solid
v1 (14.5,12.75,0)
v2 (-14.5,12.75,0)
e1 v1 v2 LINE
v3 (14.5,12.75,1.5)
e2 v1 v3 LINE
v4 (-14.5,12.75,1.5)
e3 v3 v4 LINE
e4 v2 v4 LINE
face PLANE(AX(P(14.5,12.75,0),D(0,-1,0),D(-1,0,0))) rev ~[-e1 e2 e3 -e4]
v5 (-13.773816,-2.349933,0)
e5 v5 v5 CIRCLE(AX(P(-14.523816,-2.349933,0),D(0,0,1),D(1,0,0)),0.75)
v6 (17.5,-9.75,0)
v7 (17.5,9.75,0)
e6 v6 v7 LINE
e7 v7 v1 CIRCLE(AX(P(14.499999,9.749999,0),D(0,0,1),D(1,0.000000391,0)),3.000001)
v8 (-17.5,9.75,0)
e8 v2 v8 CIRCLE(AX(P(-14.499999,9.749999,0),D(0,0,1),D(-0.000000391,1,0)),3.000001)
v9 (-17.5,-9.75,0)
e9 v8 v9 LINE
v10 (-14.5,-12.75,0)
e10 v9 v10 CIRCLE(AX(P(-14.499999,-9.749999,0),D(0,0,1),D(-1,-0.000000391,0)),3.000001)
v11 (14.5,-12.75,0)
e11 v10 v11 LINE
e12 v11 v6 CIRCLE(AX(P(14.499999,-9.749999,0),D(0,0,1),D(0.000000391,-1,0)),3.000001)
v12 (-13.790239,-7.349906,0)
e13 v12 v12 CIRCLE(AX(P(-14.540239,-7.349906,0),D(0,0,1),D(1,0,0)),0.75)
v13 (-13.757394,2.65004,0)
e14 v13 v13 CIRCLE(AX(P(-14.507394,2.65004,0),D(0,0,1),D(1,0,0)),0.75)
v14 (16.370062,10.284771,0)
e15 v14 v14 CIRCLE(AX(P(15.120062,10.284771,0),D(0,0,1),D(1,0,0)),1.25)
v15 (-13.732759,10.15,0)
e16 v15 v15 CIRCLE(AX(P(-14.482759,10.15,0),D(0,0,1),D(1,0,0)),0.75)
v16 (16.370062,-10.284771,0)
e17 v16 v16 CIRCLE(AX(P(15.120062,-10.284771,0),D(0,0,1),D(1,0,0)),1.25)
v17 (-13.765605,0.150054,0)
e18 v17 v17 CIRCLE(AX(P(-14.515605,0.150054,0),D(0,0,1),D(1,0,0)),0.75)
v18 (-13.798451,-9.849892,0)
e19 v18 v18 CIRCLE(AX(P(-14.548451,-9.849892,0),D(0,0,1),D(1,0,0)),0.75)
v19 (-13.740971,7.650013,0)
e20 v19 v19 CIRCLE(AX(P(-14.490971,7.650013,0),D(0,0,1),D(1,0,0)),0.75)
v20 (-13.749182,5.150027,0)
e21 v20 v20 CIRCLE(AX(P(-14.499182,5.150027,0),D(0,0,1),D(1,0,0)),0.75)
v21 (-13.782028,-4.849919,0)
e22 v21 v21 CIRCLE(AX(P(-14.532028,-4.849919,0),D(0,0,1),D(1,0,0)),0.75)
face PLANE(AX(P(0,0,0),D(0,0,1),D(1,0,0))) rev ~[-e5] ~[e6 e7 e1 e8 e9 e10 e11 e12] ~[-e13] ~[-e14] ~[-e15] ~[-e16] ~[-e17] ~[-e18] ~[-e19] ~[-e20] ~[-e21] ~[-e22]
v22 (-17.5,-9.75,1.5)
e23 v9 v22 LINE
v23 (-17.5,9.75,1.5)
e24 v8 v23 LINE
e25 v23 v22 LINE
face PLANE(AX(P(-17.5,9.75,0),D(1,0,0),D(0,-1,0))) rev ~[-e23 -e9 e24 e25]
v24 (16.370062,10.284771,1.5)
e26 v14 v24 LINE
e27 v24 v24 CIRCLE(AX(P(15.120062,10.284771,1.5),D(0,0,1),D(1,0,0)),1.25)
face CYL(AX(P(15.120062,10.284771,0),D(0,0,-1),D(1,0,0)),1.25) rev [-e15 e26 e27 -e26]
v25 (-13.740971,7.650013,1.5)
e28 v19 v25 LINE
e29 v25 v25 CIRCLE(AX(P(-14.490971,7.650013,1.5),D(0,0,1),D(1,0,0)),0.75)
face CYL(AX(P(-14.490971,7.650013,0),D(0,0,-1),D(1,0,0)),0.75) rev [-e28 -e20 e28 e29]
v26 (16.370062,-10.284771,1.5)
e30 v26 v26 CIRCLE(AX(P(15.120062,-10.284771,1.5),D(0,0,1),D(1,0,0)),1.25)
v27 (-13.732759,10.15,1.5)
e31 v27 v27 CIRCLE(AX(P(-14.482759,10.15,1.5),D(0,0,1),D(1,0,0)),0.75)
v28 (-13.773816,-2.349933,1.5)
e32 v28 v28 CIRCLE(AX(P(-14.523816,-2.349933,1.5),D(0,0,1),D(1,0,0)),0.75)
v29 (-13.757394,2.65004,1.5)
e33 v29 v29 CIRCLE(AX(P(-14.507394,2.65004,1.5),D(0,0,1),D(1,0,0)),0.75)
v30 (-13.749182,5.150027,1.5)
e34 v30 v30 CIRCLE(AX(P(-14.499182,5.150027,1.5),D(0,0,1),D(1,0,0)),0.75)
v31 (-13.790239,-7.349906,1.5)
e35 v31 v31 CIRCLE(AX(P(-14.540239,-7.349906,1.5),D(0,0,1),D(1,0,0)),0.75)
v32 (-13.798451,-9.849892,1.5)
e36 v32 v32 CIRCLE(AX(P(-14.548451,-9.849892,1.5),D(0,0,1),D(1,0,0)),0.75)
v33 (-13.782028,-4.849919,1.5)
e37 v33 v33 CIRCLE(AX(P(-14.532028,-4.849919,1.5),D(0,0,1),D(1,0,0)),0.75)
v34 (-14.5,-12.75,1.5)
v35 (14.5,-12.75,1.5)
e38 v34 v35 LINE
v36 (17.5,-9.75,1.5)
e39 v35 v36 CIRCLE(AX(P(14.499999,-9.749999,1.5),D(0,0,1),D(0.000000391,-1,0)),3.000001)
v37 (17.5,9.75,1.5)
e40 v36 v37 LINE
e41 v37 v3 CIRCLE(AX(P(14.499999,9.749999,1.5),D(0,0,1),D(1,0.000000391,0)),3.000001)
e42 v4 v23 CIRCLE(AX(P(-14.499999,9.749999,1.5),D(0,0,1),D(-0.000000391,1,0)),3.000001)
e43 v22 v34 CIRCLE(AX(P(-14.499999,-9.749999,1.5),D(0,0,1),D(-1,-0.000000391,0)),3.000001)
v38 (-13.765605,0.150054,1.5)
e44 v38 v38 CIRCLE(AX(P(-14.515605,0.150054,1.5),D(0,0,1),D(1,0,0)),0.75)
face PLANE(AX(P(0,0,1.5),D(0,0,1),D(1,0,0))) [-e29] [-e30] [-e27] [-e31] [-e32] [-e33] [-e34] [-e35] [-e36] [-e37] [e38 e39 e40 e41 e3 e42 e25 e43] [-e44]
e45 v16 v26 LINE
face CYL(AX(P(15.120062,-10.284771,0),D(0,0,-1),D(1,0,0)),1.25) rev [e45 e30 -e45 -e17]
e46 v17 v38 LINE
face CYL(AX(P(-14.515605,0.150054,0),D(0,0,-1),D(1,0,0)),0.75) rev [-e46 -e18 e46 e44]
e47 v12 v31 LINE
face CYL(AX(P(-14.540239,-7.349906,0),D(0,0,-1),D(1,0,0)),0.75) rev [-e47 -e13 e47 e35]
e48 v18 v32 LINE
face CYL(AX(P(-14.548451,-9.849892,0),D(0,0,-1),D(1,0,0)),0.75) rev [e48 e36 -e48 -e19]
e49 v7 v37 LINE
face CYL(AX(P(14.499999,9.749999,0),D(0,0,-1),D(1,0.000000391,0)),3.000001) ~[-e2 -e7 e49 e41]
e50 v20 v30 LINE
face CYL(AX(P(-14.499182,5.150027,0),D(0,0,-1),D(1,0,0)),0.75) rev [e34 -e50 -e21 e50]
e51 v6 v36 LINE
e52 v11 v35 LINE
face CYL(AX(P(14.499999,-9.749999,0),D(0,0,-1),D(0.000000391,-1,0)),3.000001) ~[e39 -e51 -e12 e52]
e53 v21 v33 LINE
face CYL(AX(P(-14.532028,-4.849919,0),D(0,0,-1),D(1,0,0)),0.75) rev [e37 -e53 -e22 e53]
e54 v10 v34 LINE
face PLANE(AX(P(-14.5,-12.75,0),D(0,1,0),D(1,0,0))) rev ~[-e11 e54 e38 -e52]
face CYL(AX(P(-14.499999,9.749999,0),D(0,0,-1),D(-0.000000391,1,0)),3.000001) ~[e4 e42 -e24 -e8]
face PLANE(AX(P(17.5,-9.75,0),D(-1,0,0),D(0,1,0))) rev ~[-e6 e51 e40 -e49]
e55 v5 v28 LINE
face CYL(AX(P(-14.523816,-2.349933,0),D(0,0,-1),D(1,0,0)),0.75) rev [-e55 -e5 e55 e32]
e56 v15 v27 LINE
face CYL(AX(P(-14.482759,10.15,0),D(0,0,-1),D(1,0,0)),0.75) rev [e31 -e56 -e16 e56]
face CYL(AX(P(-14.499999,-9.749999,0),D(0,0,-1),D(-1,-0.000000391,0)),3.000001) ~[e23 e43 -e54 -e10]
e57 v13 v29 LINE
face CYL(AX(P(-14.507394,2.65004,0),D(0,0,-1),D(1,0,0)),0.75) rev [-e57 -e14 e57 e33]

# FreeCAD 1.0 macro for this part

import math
import FreeCAD as App
import Part
import Sketcher

doc = App.newDocument("Part")
body = doc.addObject("PartDesign::Body", "Body")

# Sketch on XY plane
sketch1 = body.newObject("Sketcher::SketchObject", "Sketch")
sketch1.AttachmentSupport = (doc.getObject("XY_Plane"), [""])
sketch1.MapMode = "FlatFace"
sketch1.addGeometry([
    Part.LineSegment(App.Vector(14.5, 12.8, 0), App.Vector(-14.5, 12.8, 0)),  # 0
    Part.ArcOfCircle(Part.Circle(App.Vector(-14.5, 9.7, 0), App.Vector(0, 0, 1), 3), math.radians(90), math.radians(180)),  # 1
    Part.LineSegment(App.Vector(-17.5, 9.8, 0), App.Vector(-17.5, -9.8, 0)),  # 2
    Part.ArcOfCircle(Part.Circle(App.Vector(-14.5, -9.7, 0), App.Vector(0, 0, 1), 3), math.radians(-180), math.radians(-90)),  # 3
    Part.LineSegment(App.Vector(-14.5, -12.8, 0), App.Vector(14.5, -12.8, 0)),  # 4
    Part.ArcOfCircle(Part.Circle(App.Vector(14.5, -9.7, 0), App.Vector(0, 0, 1), 3), math.radians(-90), math.radians(0)),  # 5
    Part.LineSegment(App.Vector(17.5, -9.8, 0), App.Vector(17.5, 9.8, 0)),  # 6
    Part.ArcOfCircle(Part.Circle(App.Vector(14.5, 9.7, 0), App.Vector(0, 0, 1), 3), math.radians(0), math.radians(90)),  # 7
    Part.Circle(App.Vector(-14.5, -9.8, 0), App.Vector(0, 0, 1), 0.8),  # 8
    Part.Circle(App.Vector(-14.5, -7.3, 0), App.Vector(0, 0, 1), 0.8),  # 9
    Part.Circle(App.Vector(-14.5, -4.8, 0), App.Vector(0, 0, 1), 0.8),  # 10
    Part.Circle(App.Vector(-14.5, -2.3, 0), App.Vector(0, 0, 1), 0.8),  # 11
    Part.Circle(App.Vector(15.1, -10.3, 0), App.Vector(0, 0, 1), 1.2),  # 12
    Part.Circle(App.Vector(-14.5, 0.2, 0), App.Vector(0, 0, 1), 0.8),  # 13
    Part.Circle(App.Vector(-14.5, 2.7, 0), App.Vector(0, 0, 1), 0.8),  # 14
    Part.Circle(App.Vector(-14.5, 5.2, 0), App.Vector(0, 0, 1), 0.8),  # 15
    Part.Circle(App.Vector(-14.5, 7.7, 0), App.Vector(0, 0, 1), 0.8),  # 16
    Part.Circle(App.Vector(-14.5, 10.2, 0), App.Vector(0, 0, 1), 0.8),  # 17
    Part.Circle(App.Vector(15.1, 10.3, 0), App.Vector(0, 0, 1), 1.2),  # 18
], False)
sketch1.addConstraint([
    Sketcher.Constraint("Tangent", 0, 2, 1, 1),
    Sketcher.Constraint("Tangent", 1, 2, 2, 1),
    Sketcher.Constraint("Tangent", 2, 2, 3, 1),
    Sketcher.Constraint("Tangent", 3, 2, 4, 1),
    Sketcher.Constraint("Tangent", 4, 2, 5, 1),
    Sketcher.Constraint("Tangent", 5, 2, 6, 1),
    Sketcher.Constraint("Tangent", 6, 2, 7, 1),
    Sketcher.Constraint("Tangent", 7, 2, 0, 1),
    Sketcher.Constraint("Horizontal", 0),
    Sketcher.Constraint("Vertical", 2),
    Sketcher.Constraint("Horizontal", 4),
    Sketcher.Constraint("Vertical", 6),
    Sketcher.Constraint("Equal", 1, 3),
    Sketcher.Constraint("Equal", 3, 5),
    Sketcher.Constraint("Equal", 5, 7),
    Sketcher.Constraint("Equal", 8, 9),
    Sketcher.Constraint("Equal", 9, 10),
    Sketcher.Constraint("Equal", 10, 11),
    Sketcher.Constraint("Equal", 11, 13),
    Sketcher.Constraint("Equal", 13, 14),
    Sketcher.Constraint("Equal", 14, 15),
    Sketcher.Constraint("Equal", 15, 16),
    Sketcher.Constraint("Equal", 16, 17),
    Sketcher.Constraint("Equal", 12, 18),
    Sketcher.Constraint("Symmetric", 1, 3, 5, 3, -1, 1),
    Sketcher.Constraint("Symmetric", 12, 3, 18, 3, -1),
    Sketcher.Constraint("Radius", 1, 3.000001),
    Sketcher.Constraint("Diameter", 8, 1.5),
    Sketcher.Constraint("Diameter", 12, 2.5),
    Sketcher.Constraint("DistanceX", 0, 2, 0, 1, 29.0),
    Sketcher.Constraint("DistanceY", 2, 2, 2, 1, 19.5),
    Sketcher.Constraint("DistanceY", 1, 3, 17, 3, 0.400001),
    Sketcher.Constraint("DistanceX", 9, 3, 12, 3, 29.660301),
    Sketcher.Constraint("DistanceX", 8, 3, -1, 1, 14.548451),
    Sketcher.Constraint("DistanceX", 9, 3, -1, 1, 14.540239),
    Sketcher.Constraint("DistanceY", 10, 3, -1, 1, 4.849919),
    Sketcher.Constraint("DistanceY", 12, 3, -1, 1, 10.284771),
    Sketcher.Constraint("DistanceY", -1, 1, 14, 3, 2.65004),
    Sketcher.Constraint("DistanceX", 15, 3, -1, 1, 14.499182),
    Sketcher.Constraint("DistanceX", 16, 3, -1, 1, 14.490971),
    Sketcher.Constraint("DistanceX", 17, 3, -1, 1, 14.482759),
    Sketcher.Constraint("DistanceY", 8, 3, 1, 3, 19.599891),
    Sketcher.Constraint("DistanceX", 9, 3, 10, 3, 0.008211),
    Sketcher.Constraint("DistanceY", 8, 3, 11, 3, 7.499959),
    Sketcher.Constraint("DistanceX", 11, 3, 13, 3, 0.008211),
    Sketcher.Constraint("DistanceY", 9, 3, 13, 3, 7.49996),
    Sketcher.Constraint("DistanceX", 13, 3, 14, 3, 0.008211),
    Sketcher.Constraint("DistanceY", 15, 3, 1, 3, 4.599972),
    Sketcher.Constraint("DistanceY", 13, 3, 16, 3, 7.499959),
    Sketcher.Constraint("DistanceY", 9, 3, -1, 1, 7.349906),
    Sketcher.Constraint("DistanceX", 11, 3, -1, 1, 14.523816),
])
pad1 = body.newObject("PartDesign::Pad", "Pad")
pad1.Profile = sketch1
pad1.Length = 1.5

doc.recompute()
